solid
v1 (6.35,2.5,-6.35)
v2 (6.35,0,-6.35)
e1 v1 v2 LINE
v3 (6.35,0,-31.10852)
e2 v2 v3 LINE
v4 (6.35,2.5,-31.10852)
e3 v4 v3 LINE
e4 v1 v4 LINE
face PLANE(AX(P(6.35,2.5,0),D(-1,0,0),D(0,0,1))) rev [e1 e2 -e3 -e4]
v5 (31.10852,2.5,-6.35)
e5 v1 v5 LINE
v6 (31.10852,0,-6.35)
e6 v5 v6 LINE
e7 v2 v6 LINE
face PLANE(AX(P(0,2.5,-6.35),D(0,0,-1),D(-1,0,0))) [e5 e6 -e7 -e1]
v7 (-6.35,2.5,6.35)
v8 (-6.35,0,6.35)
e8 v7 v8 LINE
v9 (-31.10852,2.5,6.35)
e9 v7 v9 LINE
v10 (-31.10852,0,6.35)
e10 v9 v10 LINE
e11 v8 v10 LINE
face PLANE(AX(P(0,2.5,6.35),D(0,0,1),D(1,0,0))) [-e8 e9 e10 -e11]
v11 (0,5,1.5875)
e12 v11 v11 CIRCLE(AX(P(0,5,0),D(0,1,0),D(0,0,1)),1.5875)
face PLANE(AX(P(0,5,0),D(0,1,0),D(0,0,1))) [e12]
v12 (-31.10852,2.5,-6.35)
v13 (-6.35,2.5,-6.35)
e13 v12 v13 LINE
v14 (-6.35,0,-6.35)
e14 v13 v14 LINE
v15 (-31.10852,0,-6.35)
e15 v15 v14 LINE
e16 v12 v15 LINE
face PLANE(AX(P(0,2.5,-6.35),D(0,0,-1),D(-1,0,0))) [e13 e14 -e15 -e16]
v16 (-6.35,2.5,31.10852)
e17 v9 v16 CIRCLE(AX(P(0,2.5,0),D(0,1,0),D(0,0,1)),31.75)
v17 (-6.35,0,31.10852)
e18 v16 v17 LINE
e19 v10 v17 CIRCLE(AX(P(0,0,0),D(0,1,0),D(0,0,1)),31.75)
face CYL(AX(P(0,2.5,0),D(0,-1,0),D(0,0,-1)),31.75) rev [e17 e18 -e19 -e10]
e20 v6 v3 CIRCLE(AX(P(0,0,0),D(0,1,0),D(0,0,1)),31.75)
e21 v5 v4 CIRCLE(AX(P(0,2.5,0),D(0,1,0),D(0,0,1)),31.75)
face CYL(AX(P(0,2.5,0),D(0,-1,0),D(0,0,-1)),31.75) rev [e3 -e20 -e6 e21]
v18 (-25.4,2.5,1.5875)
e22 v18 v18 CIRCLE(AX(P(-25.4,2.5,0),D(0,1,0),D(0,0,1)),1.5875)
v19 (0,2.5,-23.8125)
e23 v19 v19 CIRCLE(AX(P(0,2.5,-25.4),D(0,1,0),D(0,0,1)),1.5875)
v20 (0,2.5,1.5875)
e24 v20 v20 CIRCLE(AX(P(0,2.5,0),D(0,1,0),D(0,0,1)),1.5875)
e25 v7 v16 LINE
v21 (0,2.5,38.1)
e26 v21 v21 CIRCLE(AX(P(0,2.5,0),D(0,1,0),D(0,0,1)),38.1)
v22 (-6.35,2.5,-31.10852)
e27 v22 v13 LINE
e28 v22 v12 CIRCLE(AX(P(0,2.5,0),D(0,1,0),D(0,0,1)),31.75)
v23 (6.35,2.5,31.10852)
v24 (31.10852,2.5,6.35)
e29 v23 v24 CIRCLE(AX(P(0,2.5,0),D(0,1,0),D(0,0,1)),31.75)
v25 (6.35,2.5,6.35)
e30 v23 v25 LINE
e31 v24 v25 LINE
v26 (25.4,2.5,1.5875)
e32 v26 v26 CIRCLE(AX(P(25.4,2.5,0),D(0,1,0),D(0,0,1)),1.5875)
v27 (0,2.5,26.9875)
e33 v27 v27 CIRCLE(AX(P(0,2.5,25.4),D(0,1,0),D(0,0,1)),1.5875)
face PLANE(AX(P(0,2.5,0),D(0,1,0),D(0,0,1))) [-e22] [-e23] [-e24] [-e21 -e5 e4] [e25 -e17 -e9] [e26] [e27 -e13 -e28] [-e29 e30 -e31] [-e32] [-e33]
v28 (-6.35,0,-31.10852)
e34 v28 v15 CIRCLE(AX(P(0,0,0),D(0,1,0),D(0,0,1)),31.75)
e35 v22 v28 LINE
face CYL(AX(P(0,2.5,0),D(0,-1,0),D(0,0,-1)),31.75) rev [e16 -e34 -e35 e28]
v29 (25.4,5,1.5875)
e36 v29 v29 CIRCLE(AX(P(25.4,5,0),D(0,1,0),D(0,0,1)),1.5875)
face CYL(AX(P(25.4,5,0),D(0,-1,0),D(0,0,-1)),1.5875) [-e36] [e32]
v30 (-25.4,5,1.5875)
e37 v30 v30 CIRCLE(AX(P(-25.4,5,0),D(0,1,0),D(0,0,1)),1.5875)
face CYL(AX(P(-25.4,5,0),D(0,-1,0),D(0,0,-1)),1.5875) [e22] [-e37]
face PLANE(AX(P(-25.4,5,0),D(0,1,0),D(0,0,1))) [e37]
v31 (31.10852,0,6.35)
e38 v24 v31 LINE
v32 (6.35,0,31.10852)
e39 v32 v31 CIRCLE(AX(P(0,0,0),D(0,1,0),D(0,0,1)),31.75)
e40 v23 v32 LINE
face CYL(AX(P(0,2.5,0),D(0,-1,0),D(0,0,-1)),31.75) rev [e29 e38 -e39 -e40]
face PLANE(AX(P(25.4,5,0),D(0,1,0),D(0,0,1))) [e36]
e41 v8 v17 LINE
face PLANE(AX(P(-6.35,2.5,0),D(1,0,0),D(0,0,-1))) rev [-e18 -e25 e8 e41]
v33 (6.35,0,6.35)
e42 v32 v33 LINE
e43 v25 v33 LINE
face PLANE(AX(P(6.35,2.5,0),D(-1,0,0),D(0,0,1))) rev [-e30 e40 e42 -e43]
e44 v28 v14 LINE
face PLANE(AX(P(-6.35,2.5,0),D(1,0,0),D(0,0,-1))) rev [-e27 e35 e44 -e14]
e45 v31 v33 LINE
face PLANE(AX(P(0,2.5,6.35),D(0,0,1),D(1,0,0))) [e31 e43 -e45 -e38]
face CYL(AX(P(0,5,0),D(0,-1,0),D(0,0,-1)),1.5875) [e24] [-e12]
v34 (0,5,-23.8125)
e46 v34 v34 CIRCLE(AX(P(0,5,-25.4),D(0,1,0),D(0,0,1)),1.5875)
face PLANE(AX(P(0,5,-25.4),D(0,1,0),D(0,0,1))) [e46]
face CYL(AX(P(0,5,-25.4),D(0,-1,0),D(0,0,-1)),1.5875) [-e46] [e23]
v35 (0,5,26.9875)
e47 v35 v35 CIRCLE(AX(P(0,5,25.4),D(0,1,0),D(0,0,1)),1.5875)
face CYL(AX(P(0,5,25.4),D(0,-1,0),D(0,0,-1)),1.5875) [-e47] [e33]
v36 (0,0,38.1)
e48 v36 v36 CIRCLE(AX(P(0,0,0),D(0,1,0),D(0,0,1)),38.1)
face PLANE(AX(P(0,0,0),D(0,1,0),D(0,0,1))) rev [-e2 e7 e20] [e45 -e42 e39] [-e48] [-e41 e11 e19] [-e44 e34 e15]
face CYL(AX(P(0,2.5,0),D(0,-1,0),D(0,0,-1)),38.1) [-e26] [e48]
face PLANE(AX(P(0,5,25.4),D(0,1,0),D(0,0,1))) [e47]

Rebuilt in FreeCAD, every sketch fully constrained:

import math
import FreeCAD as App
import Part
import Sketcher
from FreeCAD import Vector
Q = App.Units.Quantity

doc = App.newDocument("Part")
body = doc.addObject("PartDesign::Body", "Body")

# Sketch on XZ plane
sketch1 = body.newObject("Sketcher::SketchObject", "Sketch")
sketch1.AttachmentSupport = (doc.getObject("XZ_Plane"), [""])
sketch1.MapMode = "FlatFace"
sketch1.addGeometry([
    Part.Circle(Vector(0, 0, 0), Vector(0, 0, 1), 38),  # 0
    Part.ArcOfCircle(Part.Circle(Vector(0, 0, 0), Vector(0, 0, 1), 32), math.radians(102), math.radians(168)),  # 1
    Part.LineSegment(Vector(-31, 6, 0), Vector(-6, 6, 0)),  # 2
    Part.LineSegment(Vector(-6, 6, 0), Vector(-6, 31, 0)),  # 3
    Part.ArcOfCircle(Part.Circle(Vector(0, 0, 0), Vector(0, 0, 1), 32), math.radians(12), math.radians(78)),  # 4
    Part.LineSegment(Vector(6, 31, 0), Vector(6, 6, 0)),  # 5
    Part.LineSegment(Vector(6, 6, 0), Vector(31, 6, 0)),  # 6
    Part.ArcOfCircle(Part.Circle(Vector(0, 0, 0), Vector(0, 0, 1), 32), math.radians(-168), math.radians(-102)),  # 7
    Part.LineSegment(Vector(-6, -31, 0), Vector(-6, -6, 0)),  # 8
    Part.LineSegment(Vector(-6, -6, 0), Vector(-31, -6, 0)),  # 9
    Part.ArcOfCircle(Part.Circle(Vector(0, 0, 0), Vector(0, 0, 1), 32), math.radians(-78), math.radians(-12)),  # 10
    Part.LineSegment(Vector(31, -6, 0), Vector(6, -6, 0)),  # 11
    Part.LineSegment(Vector(6, -6, 0), Vector(6, -31, 0)),  # 12
], False)
sketch1.addConstraint([
    Sketcher.Constraint("Coincident", 1, 2, 2, 1),
    Sketcher.Constraint("Coincident", 2, 2, 3, 1),
    Sketcher.Constraint("Coincident", 3, 2, 1, 1),
    Sketcher.Constraint("Coincident", 4, 2, 5, 1),
    Sketcher.Constraint("Coincident", 5, 2, 6, 1),
    Sketcher.Constraint("Coincident", 6, 2, 4, 1),
    Sketcher.Constraint("Coincident", 7, 2, 8, 1),
    Sketcher.Constraint("Coincident", 8, 2, 9, 1),
    Sketcher.Constraint("Coincident", 9, 2, 7, 1),
    Sketcher.Constraint("Coincident", 10, 2, 11, 1),
    Sketcher.Constraint("Coincident", 11, 2, 12, 1),
    Sketcher.Constraint("Coincident", 12, 2, 10, 1),
    Sketcher.Constraint("Horizontal", 2),
    Sketcher.Constraint("Vertical", 3),
    Sketcher.Constraint("Vertical", 5),
    Sketcher.Constraint("Horizontal", 6),
    Sketcher.Constraint("Vertical", 8),
    Sketcher.Constraint("Horizontal", 9),
    Sketcher.Constraint("Horizontal", 11),
    Sketcher.Constraint("Vertical", 12),
    Sketcher.Constraint("Coincident", 0, 3, -1, 1),
    Sketcher.Constraint("Coincident", 1, 3, -1, 1),
    Sketcher.Constraint("Coincident", 4, 3, -1, 1),
    Sketcher.Constraint("Coincident", 7, 3, -1, 1),
    Sketcher.Constraint("Coincident", 10, 3, -1, 1),
    Sketcher.Constraint("Equal", 1, 4),
    Sketcher.Constraint("Equal", 4, 7),
    Sketcher.Constraint("Equal", 7, 10),
    Sketcher.Constraint("Symmetric", 5, 2, 8, 2, -1, 1),
    Sketcher.Constraint("Symmetric", 2, 2, 11, 2, -1, 1),
    Sketcher.Constraint("Symmetric", 2, 2, 5, 2, -2),
    Sketcher.Constraint("Equal", 11, 3),
    Sketcher.Constraint("Diameter", 0, Q("3 in")),
    Sketcher.Constraint("Radius", 1, Q("1.25 in")),
    Sketcher.Constraint("DistanceX", 3, 2, 4, 2, Q("0.5 in")),
])
pad1 = body.newObject("PartDesign::Pad", "Pad")
pad1.Profile = sketch1
pad1.Length = 2.5
pad1.Reversed = True

# Sketch on XZ plane
sketch2 = body.newObject("Sketcher::SketchObject", "Sketch001")
sketch2.AttachmentSupport = (doc.getObject("XZ_Plane"), [""])
sketch2.MapMode = "FlatFace"
sketch2.AttachmentOffset = App.Placement(Vector(0, 0, -2.5), App.Rotation())
sketch2.addGeometry([
    Part.Circle(Vector(0, 0, 0), Vector(0, 0, 1), 1.6),  # 0
    Part.Circle(Vector(-25.4, 0, 0), Vector(0, 0, 1), 1.6),  # 1
    Part.Circle(Vector(0, -25.4, 0), Vector(0, 0, 1), 1.6),  # 2
    Part.Circle(Vector(25.4, 0, 0), Vector(0, 0, 1), 1.6),  # 3
    Part.Circle(Vector(0, 25.4, 0), Vector(0, 0, 1), 1.6),  # 4
], False)
sketch2.addConstraint([
    Sketcher.Constraint("Coincident", 0, 3, -1, 1),
    Sketcher.Constraint("Equal", 0, 1),
    Sketcher.Constraint("Equal", 1, 2),
    Sketcher.Constraint("Equal", 2, 3),
    Sketcher.Constraint("Equal", 3, 4),
    Sketcher.Constraint("Symmetric", 1, 3, 3, 3, -1, 1),
    Sketcher.Constraint("Symmetric", 2, 3, 4, 3, -1, 1),
    Sketcher.Constraint("PointOnObject", 1, 3, -1),
    Sketcher.Constraint("PointOnObject", 2, 3, -2),
    Sketcher.Constraint("Diameter", 0, Q("0.125 in")),
    Sketcher.Constraint("DistanceX", 1, 3, -1, 1, Q("1 in")),
    Sketcher.Constraint("DistanceY", 2, 3, -1, 1, Q("1 in")),
])
pad2 = body.newObject("PartDesign::Pad", "Pad001")
pad2.Profile = sketch2
pad2.Length = 2.5
pad2.Reversed = True

doc.recompute()
